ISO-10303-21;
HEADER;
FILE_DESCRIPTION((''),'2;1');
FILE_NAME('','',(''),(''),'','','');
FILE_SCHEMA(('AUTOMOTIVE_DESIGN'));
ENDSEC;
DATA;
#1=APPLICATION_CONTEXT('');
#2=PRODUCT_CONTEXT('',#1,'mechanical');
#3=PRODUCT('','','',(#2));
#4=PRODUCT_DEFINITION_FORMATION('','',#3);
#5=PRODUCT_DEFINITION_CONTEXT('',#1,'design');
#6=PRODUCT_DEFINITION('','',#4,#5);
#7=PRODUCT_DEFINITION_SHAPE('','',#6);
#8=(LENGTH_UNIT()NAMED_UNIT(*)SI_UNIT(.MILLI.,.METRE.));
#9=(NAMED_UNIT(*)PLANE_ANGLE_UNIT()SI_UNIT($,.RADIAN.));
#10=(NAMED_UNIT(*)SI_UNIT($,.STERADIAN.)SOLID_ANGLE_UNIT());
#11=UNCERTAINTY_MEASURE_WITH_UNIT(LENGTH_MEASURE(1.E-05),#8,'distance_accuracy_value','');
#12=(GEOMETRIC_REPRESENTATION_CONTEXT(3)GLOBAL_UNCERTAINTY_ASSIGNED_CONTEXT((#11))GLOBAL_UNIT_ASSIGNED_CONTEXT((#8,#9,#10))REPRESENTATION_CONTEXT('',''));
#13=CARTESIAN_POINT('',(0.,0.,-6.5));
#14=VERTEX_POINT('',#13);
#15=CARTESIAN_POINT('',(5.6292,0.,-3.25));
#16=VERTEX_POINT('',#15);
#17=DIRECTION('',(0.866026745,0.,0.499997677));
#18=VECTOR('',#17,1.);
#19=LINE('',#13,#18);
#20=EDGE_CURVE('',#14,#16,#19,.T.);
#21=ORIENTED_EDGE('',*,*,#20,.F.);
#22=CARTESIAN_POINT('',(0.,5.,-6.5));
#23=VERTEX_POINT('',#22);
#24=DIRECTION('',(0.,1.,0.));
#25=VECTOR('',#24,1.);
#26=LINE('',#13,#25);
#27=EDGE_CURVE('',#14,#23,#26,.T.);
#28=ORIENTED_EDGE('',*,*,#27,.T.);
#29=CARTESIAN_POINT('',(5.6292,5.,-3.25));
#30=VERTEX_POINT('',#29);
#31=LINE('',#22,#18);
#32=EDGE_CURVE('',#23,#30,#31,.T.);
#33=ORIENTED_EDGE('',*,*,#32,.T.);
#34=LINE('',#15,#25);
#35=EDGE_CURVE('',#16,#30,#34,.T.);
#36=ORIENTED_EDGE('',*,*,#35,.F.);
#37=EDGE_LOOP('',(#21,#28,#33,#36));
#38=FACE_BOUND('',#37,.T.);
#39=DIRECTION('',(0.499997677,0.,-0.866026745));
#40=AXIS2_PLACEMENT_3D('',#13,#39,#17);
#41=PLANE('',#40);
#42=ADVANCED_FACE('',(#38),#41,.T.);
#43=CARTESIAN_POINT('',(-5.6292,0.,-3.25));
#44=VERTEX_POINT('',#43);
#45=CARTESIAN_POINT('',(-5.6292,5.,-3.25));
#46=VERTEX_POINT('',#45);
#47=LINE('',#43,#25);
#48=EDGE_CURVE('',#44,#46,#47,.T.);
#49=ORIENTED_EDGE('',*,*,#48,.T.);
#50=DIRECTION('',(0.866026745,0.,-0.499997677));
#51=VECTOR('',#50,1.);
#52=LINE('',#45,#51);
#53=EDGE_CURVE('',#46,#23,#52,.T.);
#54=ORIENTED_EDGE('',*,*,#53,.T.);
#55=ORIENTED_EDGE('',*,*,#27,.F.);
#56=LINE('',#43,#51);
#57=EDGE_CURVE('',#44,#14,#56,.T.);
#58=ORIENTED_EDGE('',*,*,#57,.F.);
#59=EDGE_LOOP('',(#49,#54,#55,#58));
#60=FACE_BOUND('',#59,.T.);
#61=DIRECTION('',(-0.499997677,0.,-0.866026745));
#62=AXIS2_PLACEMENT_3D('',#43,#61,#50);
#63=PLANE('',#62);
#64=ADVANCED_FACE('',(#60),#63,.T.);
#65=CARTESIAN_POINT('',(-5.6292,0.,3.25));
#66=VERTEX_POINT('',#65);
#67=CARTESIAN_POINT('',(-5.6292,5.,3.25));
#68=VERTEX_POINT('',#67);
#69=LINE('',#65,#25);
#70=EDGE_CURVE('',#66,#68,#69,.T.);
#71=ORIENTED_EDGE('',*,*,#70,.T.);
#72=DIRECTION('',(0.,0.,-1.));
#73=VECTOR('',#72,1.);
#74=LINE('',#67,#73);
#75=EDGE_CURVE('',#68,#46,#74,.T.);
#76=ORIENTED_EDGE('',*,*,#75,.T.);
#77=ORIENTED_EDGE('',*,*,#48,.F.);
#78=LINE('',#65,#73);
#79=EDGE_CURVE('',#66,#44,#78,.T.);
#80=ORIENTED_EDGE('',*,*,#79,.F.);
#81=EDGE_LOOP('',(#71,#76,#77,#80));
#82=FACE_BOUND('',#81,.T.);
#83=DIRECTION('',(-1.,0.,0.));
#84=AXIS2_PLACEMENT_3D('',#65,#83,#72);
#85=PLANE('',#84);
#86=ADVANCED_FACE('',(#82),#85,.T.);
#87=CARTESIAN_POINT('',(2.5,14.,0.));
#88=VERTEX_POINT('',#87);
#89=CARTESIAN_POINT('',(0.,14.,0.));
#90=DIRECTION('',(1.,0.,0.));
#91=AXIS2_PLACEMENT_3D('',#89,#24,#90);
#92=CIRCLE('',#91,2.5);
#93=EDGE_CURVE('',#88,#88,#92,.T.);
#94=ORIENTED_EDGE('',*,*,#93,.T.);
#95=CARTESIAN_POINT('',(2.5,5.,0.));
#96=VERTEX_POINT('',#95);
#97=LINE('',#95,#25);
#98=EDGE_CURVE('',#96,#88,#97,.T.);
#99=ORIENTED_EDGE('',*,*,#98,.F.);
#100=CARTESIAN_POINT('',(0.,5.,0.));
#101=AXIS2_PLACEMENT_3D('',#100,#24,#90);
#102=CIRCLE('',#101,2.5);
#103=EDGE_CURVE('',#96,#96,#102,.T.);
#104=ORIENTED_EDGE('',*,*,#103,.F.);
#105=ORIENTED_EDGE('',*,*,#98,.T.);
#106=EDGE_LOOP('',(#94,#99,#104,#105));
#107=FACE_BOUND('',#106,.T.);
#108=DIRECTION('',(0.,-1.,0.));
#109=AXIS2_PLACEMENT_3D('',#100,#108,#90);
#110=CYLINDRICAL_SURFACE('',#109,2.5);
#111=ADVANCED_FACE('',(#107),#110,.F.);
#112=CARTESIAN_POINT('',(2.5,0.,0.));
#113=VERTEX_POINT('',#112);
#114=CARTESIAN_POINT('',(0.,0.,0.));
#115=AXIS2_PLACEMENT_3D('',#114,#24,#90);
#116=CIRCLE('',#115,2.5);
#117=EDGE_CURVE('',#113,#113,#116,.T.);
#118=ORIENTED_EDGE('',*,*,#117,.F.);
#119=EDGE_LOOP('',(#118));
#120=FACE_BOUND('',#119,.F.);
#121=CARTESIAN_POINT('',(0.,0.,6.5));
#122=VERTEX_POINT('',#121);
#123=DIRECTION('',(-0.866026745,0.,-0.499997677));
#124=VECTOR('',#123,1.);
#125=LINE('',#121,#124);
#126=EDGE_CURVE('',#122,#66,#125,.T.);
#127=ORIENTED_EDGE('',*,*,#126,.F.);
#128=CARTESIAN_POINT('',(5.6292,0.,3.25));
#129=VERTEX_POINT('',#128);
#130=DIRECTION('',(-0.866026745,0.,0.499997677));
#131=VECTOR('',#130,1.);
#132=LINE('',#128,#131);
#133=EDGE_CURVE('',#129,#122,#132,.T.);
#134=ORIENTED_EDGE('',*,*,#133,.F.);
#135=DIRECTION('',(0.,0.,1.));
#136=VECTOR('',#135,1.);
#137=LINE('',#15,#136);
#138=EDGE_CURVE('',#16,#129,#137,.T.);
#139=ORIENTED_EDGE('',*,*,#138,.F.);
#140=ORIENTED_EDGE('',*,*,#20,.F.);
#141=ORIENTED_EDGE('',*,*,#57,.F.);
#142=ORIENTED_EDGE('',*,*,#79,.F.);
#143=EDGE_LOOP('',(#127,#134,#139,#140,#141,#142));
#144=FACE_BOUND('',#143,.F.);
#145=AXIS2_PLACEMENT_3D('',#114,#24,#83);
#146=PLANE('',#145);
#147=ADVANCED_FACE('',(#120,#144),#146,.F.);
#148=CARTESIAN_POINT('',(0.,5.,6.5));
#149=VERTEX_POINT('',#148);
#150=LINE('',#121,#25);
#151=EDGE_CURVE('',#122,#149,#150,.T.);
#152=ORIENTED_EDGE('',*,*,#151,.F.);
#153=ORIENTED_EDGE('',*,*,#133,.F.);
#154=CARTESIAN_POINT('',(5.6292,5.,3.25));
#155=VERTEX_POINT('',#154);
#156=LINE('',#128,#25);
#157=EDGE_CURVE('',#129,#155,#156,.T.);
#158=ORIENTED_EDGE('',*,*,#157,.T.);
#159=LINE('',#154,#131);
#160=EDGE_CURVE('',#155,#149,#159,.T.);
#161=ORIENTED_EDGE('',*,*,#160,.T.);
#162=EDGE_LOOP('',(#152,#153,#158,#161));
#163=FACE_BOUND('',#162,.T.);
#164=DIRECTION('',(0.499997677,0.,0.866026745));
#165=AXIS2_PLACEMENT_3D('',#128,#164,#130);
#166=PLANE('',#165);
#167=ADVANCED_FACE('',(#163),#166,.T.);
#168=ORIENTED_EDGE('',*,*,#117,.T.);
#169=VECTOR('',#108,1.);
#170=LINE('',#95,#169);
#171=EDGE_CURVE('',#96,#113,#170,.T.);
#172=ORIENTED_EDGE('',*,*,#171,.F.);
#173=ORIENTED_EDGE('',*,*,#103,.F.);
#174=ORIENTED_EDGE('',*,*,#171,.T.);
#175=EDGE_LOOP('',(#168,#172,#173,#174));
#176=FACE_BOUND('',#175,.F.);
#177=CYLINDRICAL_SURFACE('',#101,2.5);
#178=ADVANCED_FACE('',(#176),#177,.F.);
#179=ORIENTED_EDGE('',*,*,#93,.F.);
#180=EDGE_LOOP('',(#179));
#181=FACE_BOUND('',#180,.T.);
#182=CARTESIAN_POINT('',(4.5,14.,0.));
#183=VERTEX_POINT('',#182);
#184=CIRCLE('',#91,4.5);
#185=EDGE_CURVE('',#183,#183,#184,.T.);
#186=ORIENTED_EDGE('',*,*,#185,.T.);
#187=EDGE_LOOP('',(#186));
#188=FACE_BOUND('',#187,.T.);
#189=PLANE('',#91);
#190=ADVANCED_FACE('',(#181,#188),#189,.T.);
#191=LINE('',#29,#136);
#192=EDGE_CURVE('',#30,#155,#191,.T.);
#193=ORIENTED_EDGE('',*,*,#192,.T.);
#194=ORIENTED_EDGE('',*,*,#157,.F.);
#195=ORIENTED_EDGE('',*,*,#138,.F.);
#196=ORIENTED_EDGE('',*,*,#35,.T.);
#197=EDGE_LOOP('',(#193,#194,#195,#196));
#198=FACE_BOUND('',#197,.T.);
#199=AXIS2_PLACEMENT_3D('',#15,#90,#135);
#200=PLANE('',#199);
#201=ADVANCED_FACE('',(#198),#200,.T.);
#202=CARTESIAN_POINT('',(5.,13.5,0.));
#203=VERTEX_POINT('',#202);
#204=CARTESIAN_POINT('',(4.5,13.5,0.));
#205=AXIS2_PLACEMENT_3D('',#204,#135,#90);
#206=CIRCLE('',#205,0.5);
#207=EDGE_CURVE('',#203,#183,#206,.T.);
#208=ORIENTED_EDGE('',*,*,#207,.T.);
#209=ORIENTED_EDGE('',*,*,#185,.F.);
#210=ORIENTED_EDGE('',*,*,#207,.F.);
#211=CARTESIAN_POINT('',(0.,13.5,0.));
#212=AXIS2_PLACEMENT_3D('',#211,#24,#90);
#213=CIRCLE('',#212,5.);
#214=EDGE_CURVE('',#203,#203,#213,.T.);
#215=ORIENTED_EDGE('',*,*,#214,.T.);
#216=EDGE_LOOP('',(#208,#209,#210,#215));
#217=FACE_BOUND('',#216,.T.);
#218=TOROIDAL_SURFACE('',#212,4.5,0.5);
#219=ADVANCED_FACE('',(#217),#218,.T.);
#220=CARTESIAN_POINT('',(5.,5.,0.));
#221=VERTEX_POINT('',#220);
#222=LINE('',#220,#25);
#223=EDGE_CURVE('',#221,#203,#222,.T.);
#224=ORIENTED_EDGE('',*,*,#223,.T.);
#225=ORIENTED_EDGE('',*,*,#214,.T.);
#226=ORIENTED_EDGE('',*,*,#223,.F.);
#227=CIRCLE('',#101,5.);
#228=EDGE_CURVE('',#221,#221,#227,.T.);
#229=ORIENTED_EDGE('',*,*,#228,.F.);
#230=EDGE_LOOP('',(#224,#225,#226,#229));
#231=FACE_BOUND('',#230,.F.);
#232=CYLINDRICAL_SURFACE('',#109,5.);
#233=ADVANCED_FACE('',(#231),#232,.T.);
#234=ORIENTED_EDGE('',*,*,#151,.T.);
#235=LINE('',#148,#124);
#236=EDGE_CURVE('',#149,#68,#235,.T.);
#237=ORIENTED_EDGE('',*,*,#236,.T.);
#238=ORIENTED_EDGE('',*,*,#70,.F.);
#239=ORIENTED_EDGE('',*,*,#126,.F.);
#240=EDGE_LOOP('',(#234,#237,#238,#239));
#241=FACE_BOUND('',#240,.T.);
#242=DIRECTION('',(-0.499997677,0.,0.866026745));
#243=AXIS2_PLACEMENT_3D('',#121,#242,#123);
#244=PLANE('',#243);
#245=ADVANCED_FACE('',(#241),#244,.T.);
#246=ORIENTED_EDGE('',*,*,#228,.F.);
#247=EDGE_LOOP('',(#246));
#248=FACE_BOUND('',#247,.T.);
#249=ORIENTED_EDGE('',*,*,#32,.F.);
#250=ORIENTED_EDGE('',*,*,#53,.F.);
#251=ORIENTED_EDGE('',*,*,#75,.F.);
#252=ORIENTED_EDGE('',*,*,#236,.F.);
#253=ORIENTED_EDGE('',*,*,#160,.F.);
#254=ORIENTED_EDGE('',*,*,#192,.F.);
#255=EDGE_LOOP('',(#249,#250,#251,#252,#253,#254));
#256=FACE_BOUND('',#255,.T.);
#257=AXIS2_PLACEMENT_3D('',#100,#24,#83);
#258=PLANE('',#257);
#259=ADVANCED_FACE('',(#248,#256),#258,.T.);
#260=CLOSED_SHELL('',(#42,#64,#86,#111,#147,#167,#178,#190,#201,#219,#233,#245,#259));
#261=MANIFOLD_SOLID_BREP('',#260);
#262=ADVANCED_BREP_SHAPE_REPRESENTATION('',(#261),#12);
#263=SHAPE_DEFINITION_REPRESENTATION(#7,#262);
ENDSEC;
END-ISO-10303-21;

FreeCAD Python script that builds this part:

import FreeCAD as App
import Part
import Sketcher
from FreeCAD import Vector
Q = App.Units.Quantity


def edges_at(feature, points):
    """Names of the edges that pass closest to the given points."""
    edges = feature.Shape.Edges
    near = lambda p: min(range(len(edges)), key=lambda i: edges[i].distToShape(Part.Vertex(*p))[0])
    return sorted({f"Edge{near(p) + 1}" for p in points})


def add_polygon(sketch, points):
    """Adds a closed chain of lines whose ends are joined by coincident constraints."""
    first, n = sketch.GeometryCount, len(points)
    for a, b in zip(points, points[1:] + points[:1]):
        sketch.addGeometry(Part.LineSegment(App.Vector(*a, 0), App.Vector(*b, 0)), False)
    for i in range(n):
        sketch.addConstraint(Sketcher.Constraint("Coincident", first + i, 2, first + (i + 1) % n, 1))

doc = App.newDocument("Part")
body = doc.addObject("PartDesign::Body", "Body")

# Sketch on XZ plane
sketch1 = body.newObject("Sketcher::SketchObject", "Sketch")
sketch1.AttachmentSupport = (doc.getObject("XZ_Plane"), [""])
sketch1.MapMode = "FlatFace"
add_polygon(sketch1, [(6, -3), (0, -6), (-6, -3), (-6, 3), (0, 6), (6, 3)])  # lines 0-5
sketch1.addConstraint([
    Sketcher.Constraint("Vertical", 2),
    Sketcher.Constraint("Vertical", 5),
    Sketcher.Constraint("Symmetric", 0, 2, 3, 2, -1, 1),
    Sketcher.Constraint("Symmetric", 1, 2, 4, 2, -1, 1),
    Sketcher.Constraint("PointOnObject", 0, 2, -2),
    Sketcher.Constraint("Parallel", 0, 3),
    Sketcher.Constraint("Horizontal", 2, 2, 4, 2),
    Sketcher.Constraint("Angle", 0, Q("-150.0002 deg")),
    Sketcher.Constraint("DistanceY", 2, 1, 2, 2, 6.5),
    Sketcher.Constraint("DistanceY", 0, 2, 3, 2, 13.0),
])
pad1 = body.newObject("PartDesign::Pad", "Pad")
pad1.Profile = sketch1
pad1.Length = 5
pad1.Reversed = True

# Sketch on XZ plane
sketch2 = body.newObject("Sketcher::SketchObject", "Sketch001")
sketch2.AttachmentSupport = (doc.getObject("XZ_Plane"), [""])
sketch2.MapMode = "FlatFace"
sketch2.AttachmentOffset = App.Placement(Vector(0, 0, -5), App.Rotation())
sketch2.addGeometry([
    Part.Circle(Vector(0, 0, 0), Vector(0, 0, 1), 5),
    Part.Circle(Vector(0, 0, 0), Vector(0, 0, 1), 2.5),
], False)
sketch2.addConstraint([
    Sketcher.Constraint("Coincident", 0, 3, -1, 1),
    Sketcher.Constraint("Coincident", 1, 3, -1, 1),
    Sketcher.Constraint("Diameter", 0, 10.0),
    Sketcher.Constraint("Diameter", 1, 5.0),
])
pad2 = body.newObject("PartDesign::Pad", "Pad001")
pad2.Profile = sketch2
pad2.Length = 9
pad2.Reversed = True

# Sketch on XZ plane
sketch3 = body.newObject("Sketcher::SketchObject", "Sketch002")
sketch3.AttachmentSupport = (doc.getObject("XZ_Plane"), [""])
sketch3.MapMode = "FlatFace"
sketch3.AttachmentOffset = App.Placement(Vector(0, 0, -5), App.Rotation())
sketch3.addGeometry(Part.Circle(Vector(0, 0, 0), Vector(0, 0, 1), 2.5), False)
sketch3.addConstraint([
    Sketcher.Constraint("Coincident", 0, 3, -1, 1),
    Sketcher.Constraint("Diameter", 0, 5.0),
])
pocket1 = body.newObject("PartDesign::Pocket", "Pocket")
pocket1.Profile = sketch3
pocket1.Type = "ThroughAll"
pocket1.Reversed = True
doc.recompute()

fillet = body.newObject("PartDesign::Fillet", "Fillet")
fillet.Base = (pocket1, edges_at(pocket1, [(-5, 14, 0)]))
fillet.Radius = 0.5

doc.recompute()
